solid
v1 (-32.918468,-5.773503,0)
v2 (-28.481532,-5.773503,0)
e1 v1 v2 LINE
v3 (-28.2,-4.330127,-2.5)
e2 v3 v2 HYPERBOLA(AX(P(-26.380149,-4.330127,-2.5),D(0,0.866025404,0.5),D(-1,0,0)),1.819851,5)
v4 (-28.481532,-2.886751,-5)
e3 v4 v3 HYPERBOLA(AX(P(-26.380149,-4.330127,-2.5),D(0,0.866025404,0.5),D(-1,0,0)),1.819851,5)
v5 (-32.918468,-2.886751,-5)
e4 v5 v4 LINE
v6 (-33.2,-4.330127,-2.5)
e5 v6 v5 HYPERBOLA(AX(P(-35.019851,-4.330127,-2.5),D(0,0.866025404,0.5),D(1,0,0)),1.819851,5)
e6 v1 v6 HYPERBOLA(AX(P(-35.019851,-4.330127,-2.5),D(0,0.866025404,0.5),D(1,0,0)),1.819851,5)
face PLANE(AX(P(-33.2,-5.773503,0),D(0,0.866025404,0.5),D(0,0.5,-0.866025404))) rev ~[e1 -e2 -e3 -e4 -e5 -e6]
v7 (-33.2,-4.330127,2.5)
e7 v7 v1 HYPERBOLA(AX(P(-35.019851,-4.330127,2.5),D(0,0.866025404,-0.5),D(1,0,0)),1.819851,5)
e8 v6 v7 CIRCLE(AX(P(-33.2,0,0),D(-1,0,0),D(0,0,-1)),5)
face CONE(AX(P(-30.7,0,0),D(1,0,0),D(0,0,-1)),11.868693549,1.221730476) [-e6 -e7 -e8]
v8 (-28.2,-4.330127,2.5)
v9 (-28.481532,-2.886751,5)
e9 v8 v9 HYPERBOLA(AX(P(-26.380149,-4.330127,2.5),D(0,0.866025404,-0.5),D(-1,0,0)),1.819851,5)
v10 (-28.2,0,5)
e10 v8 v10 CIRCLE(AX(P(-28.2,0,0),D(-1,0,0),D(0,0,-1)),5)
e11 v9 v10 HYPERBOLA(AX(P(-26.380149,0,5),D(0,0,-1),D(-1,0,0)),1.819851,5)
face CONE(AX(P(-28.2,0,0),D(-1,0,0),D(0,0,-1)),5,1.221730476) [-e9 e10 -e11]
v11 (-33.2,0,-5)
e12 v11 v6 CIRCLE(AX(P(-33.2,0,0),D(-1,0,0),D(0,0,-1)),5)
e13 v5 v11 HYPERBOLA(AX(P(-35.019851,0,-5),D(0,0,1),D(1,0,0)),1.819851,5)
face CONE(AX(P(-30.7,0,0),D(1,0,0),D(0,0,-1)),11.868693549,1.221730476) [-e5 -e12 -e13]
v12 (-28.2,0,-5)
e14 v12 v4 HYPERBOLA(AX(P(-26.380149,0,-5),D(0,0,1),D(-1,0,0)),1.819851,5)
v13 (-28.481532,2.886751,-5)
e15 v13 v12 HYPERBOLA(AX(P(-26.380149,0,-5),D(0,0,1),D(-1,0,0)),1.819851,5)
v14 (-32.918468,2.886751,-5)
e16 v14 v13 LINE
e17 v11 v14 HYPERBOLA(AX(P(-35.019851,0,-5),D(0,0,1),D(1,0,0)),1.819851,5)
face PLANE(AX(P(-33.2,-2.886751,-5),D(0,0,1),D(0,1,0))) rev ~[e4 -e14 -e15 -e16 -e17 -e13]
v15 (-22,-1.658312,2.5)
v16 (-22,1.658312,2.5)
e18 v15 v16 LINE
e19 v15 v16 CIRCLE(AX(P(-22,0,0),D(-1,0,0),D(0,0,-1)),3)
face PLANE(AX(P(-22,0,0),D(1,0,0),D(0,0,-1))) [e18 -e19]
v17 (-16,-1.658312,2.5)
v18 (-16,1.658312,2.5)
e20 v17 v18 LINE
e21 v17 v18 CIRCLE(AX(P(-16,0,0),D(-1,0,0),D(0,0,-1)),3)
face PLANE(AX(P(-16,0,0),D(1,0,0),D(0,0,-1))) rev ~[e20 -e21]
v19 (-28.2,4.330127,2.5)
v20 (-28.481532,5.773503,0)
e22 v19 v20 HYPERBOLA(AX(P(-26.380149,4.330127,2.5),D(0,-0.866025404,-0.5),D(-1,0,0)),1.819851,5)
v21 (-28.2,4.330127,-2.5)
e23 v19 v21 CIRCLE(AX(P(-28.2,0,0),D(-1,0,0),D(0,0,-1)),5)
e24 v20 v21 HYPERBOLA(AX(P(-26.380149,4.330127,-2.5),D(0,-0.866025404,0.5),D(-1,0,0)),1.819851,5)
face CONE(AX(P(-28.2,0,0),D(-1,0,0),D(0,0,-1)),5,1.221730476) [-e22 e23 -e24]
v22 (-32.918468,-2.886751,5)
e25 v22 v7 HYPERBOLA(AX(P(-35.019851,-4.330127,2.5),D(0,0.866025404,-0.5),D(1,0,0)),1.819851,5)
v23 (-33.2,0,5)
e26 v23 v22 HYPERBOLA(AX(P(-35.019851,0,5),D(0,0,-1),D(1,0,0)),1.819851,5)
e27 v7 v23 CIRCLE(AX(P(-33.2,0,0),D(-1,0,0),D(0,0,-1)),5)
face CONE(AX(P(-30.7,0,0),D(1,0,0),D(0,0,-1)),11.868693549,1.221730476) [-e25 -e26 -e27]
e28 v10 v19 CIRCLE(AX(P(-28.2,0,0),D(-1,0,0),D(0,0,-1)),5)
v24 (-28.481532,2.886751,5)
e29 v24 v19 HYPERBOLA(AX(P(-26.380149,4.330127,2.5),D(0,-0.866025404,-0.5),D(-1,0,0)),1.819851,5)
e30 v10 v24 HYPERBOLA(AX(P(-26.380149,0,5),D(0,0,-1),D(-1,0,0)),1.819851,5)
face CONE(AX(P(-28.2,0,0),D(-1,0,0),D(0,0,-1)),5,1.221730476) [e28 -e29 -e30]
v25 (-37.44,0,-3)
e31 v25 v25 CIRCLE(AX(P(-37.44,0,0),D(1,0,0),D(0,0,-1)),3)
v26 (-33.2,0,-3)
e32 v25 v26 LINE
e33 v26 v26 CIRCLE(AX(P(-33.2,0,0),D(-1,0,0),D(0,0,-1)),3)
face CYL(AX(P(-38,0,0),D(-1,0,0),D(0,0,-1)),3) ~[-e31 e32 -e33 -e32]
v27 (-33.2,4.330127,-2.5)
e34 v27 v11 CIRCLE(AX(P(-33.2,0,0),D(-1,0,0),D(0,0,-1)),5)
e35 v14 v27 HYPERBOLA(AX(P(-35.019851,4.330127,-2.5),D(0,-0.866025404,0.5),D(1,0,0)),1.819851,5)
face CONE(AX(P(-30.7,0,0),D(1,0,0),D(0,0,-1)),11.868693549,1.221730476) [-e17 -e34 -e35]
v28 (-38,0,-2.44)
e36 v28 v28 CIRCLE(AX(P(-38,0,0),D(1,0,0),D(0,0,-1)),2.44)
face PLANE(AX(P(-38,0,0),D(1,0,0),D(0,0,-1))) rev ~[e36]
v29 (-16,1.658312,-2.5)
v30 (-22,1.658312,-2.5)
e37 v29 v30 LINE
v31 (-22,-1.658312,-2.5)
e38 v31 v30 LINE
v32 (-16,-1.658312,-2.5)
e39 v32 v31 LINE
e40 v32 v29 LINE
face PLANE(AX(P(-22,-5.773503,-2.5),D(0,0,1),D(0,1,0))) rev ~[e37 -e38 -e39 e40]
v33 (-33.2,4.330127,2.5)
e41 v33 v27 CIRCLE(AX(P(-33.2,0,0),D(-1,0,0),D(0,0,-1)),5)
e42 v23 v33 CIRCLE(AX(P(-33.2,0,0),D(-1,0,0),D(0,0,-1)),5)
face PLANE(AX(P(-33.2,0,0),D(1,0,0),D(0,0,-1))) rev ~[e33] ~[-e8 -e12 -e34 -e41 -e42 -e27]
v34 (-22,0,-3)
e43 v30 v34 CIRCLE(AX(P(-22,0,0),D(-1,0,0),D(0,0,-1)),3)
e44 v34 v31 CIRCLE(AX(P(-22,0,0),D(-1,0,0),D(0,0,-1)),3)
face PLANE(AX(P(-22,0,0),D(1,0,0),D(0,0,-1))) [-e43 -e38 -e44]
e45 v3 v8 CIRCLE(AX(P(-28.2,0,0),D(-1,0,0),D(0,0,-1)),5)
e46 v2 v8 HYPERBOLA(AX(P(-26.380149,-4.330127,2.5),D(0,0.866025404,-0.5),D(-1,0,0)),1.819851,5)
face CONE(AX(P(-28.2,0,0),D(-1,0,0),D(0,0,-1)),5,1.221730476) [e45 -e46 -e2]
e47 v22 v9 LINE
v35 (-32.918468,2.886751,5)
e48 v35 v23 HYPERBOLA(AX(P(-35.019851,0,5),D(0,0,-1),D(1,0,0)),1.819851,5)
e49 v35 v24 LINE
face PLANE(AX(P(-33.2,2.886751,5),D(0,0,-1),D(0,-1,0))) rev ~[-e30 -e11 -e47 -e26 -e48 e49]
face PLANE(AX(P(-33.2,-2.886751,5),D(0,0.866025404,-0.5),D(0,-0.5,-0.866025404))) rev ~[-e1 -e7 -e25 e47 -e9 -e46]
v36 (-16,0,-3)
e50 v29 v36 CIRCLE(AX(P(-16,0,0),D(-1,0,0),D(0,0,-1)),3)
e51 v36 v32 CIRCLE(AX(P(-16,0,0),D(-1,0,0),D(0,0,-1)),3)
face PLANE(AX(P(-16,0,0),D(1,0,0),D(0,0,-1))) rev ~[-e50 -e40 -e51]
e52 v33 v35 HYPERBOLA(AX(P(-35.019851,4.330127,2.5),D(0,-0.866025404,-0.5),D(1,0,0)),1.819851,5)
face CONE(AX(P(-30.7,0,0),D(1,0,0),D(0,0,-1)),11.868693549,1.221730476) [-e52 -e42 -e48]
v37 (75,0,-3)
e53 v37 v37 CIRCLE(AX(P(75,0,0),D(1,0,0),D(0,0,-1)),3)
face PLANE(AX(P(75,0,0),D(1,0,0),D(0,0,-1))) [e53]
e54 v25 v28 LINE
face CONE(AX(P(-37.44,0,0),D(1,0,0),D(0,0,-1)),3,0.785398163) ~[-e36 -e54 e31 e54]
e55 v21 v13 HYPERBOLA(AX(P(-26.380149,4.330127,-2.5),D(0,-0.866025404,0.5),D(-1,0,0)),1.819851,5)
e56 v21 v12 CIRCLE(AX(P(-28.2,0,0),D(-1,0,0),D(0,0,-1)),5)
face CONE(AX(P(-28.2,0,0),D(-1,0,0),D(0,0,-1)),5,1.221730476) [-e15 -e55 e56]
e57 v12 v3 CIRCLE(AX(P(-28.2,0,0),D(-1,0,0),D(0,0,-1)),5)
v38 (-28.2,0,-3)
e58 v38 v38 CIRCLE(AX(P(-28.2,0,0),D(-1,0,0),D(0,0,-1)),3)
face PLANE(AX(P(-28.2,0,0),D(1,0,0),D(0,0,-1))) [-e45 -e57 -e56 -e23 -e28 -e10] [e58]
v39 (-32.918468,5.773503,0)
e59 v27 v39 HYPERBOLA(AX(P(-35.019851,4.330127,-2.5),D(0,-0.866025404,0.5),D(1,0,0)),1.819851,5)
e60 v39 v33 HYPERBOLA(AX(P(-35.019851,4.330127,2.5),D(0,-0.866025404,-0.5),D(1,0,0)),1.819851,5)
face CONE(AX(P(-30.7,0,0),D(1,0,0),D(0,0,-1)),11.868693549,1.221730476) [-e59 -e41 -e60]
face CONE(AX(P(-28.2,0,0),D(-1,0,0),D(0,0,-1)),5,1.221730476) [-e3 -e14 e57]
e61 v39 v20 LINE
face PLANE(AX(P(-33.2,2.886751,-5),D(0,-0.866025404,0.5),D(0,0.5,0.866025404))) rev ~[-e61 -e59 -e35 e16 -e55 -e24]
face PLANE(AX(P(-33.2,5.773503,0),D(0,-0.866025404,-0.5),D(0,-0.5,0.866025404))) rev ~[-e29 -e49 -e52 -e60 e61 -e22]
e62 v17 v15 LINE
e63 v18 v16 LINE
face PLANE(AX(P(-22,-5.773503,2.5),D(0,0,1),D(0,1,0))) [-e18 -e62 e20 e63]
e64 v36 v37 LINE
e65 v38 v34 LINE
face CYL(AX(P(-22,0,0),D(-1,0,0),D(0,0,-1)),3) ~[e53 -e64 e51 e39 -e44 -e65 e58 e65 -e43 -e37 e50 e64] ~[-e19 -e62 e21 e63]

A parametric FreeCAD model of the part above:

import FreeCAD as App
import Part
import Sketcher
Q = App.Units.Quantity


def edges_at(feature, points):
    """Names of the edges that pass closest to the given points."""
    edges = feature.Shape.Edges
    near = lambda p: min(range(len(edges)), key=lambda i: edges[i].distToShape(Part.Vertex(*p))[0])
    return sorted({f"Edge{near(p) + 1}" for p in points})


def add_polygon(sketch, points):
    """Adds a closed chain of lines whose ends are joined by coincident constraints."""
    first, n = sketch.GeometryCount, len(points)
    for a, b in zip(points, points[1:] + points[:1]):
        sketch.addGeometry(Part.LineSegment(App.Vector(*a, 0), App.Vector(*b, 0)), False)
    for i in range(n):
        sketch.addConstraint(Sketcher.Constraint("Coincident", first + i, 2, first + (i + 1) % n, 1))

doc = App.newDocument("Part")
body = doc.addObject("PartDesign::Body", "Body")

# Sketch on YZ plane
sketch1 = body.newObject("Sketcher::SketchObject", "Sketch")
sketch1.AttachmentSupport = (doc.getObject("YZ_Plane"), [""])
sketch1.MapMode = "FlatFace"
sketch1.AttachmentOffset = App.Placement(App.Vector(0, 0, -38), App.Rotation())
sketch1.addGeometry(Part.Circle(App.Vector(0, 0, 0), App.Vector(0, 0, 1), 3), False)
sketch1.addConstraint(Sketcher.Constraint("Coincident", 0, 3, -1, 1))
sketch1.addConstraint(Sketcher.Constraint("Diameter", 0, 6.0))
pad1 = body.newObject("PartDesign::Pad", "Pad")
pad1.Profile = sketch1
pad1.Length = 16

# Sketch on YZ plane
sketch2 = body.newObject("Sketcher::SketchObject", "Sketch001")
sketch2.AttachmentSupport = (doc.getObject("YZ_Plane"), [""])
sketch2.MapMode = "FlatFace"
sketch2.AttachmentOffset = App.Placement(App.Vector(0, 0, -33.2), App.Rotation())
add_polygon(sketch2, [(-6, 0), (-3, -5), (3, -5), (6, 0), (3, 5), (-3, 5)])  # lines 0-5
sketch2.addConstraint(Sketcher.Constraint("Horizontal", 1))
sketch2.addConstraint(Sketcher.Constraint("Horizontal", 4))
sketch2.addConstraint(Sketcher.Constraint("Symmetric", 0, 2, 3, 2, -1, 1))
sketch2.addConstraint(Sketcher.Constraint("Symmetric", 2, 2, 5, 2, -1, 1))
sketch2.addConstraint(Sketcher.Constraint("PointOnObject", 2, 2, -1))
sketch2.addConstraint(Sketcher.Constraint("Parallel", 2, 5))
sketch2.addConstraint(Sketcher.Constraint("Vertical", 1, 2, 3, 2))
sketch2.addConstraint(Sketcher.Constraint("Angle", 0, Q("-60 deg")))
sketch2.addConstraint(Sketcher.Constraint("DistanceY", 0, 2, -1, 1, 5.0))
sketch2.addConstraint(Sketcher.Constraint("DistanceX", 1, 1, 1, 2, 5.773503))
pad2 = body.newObject("PartDesign::Pad", "Pad001")
pad2.Profile = sketch2
pad2.Length = 5

# Sketch on YZ plane
sketch3 = body.newObject("Sketcher::SketchObject", "Sketch002")
sketch3.AttachmentSupport = (doc.getObject("YZ_Plane"), [""])
sketch3.MapMode = "FlatFace"
sketch3.AttachmentOffset = App.Placement(App.Vector(0, 0, -22), App.Rotation())
sketch3.addGeometry(Part.Circle(App.Vector(0, 0, 0), App.Vector(0, 0, 1), 3), False)
sketch3.addConstraint(Sketcher.Constraint("Coincident", 0, 3, -1, 1))
sketch3.addConstraint(Sketcher.Constraint("Diameter", 0, 6.0))
pad3 = body.newObject("PartDesign::Pad", "Pad002")
pad3.Profile = sketch3
pad3.Length = 97

# Sketch on YZ plane
sketch4 = body.newObject("Sketcher::SketchObject", "Sketch003")
sketch4.AttachmentSupport = (doc.getObject("YZ_Plane"), [""])
sketch4.MapMode = "FlatFace"
sketch4.AttachmentOffset = App.Placement(App.Vector(0, 0, -22), App.Rotation())
add_polygon(sketch4, [(18, 17), (-18, 17), (-18, -17), (18, -17)])  # lines 0-3
add_polygon(sketch4, [(-6, -2), (-6, 2), (6, 2), (6, -2)])  # lines 4-7
sketch4.addConstraint(Sketcher.Constraint("Horizontal", 0))
sketch4.addConstraint(Sketcher.Constraint("Vertical", 1))
sketch4.addConstraint(Sketcher.Constraint("Horizontal", 2))
sketch4.addConstraint(Sketcher.Constraint("Vertical", 3))
sketch4.addConstraint(Sketcher.Constraint("Vertical", 4))
sketch4.addConstraint(Sketcher.Constraint("Horizontal", 5))
sketch4.addConstraint(Sketcher.Constraint("Vertical", 6))
sketch4.addConstraint(Sketcher.Constraint("Horizontal", 7))
sketch4.addConstraint(Sketcher.Constraint("Symmetric", 0, 2, 2, 2, -1, 1))
sketch4.addConstraint(Sketcher.Constraint("Symmetric", 4, 2, 6, 2, -1, 1))
sketch4.addConstraint(Sketcher.Constraint("DistanceY", 4, 1, 4, 2, 5.0))
sketch4.addConstraint(Sketcher.Constraint("DistanceX", 0, 2, 0, 1, 36.354))
sketch4.addConstraint(Sketcher.Constraint("DistanceY", 1, 2, 1, 1, 34.806))
sketch4.addConstraint(Sketcher.Constraint("DistanceX", 5, 1, 5, 2, 11.547005))
pocket1 = body.newObject("PartDesign::Pocket", "Pocket")
pocket1.Profile = sketch4
pocket1.Length = 6
pocket1.Reversed = True

# Sketch on XZ plane
sketch5 = body.newObject("Sketcher::SketchObject", "Sketch004")
sketch5.AttachmentSupport = (doc.getObject("XZ_Plane"), [""])
sketch5.MapMode = "FlatFace"
add_polygon(sketch5, [(-33, -17), (-33, -5), (-31, -12), (-28, -5), (-28, -17)])  # lines 0-4
sketch5.addConstraint(Sketcher.Constraint("Vertical", 0))
sketch5.addConstraint(Sketcher.Constraint("Vertical", 3))
sketch5.addConstraint(Sketcher.Constraint("Horizontal", 4))
sketch5.addConstraint(Sketcher.Constraint("Horizontal", 0, 2, 2, 2))
sketch5.addConstraint(Sketcher.Constraint("Equal", 1, 2))
sketch5.addConstraint(Sketcher.Constraint("DistanceX", 4, 2, 4, 1, 5.0))
sketch5.addConstraint(Sketcher.Constraint("Angle", 1, Q("-70 deg")))
sketch5.addConstraint(Sketcher.Constraint("DistanceY", 0, 2, -1, 1, 5.0))
sketch5.addConstraint(Sketcher.Constraint("DistanceY", 3, 2, 1, 2, 5.0))
sketch5.addConstraint(Sketcher.Constraint("DistanceX", 0, 2, -1, 1, 33.2))
groove = body.newObject("PartDesign::Groove", "Groove")
groove.Profile = sketch5
groove.ReferenceAxis = (sketch5, ["H_Axis"])
groove.Angle = 360
doc.recompute()

chamfer = body.newObject("PartDesign::Chamfer", "Chamfer")
chamfer.Base = (groove, edges_at(groove, [(-38, 0, 3)]))
chamfer.Size = 0.56

doc.recompute()
